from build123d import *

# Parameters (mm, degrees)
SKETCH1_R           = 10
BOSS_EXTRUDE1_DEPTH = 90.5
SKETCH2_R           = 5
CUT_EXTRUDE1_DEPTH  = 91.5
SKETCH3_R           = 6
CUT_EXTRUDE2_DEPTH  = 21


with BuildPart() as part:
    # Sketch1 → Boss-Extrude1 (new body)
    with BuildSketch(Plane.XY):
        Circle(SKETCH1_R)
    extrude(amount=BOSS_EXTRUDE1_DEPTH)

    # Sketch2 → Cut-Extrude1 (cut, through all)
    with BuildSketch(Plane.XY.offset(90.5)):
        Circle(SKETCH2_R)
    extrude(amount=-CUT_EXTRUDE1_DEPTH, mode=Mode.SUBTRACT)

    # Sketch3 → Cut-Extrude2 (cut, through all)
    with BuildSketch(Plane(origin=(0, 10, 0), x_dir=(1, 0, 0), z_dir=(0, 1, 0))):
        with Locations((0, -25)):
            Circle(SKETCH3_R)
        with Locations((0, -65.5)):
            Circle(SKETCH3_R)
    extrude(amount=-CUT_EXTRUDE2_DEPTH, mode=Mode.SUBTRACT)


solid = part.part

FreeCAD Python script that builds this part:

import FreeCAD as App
import Part
import Sketcher
from FreeCAD import Vector
Q = App.Units.Quantity

doc = App.newDocument("Part")
params = doc.addObject("Spreadsheet::Sheet", "Params")
for row, (alias, value) in enumerate([
    ("sketch1_diameter", "20 mm"),
    ("pad1_length", "90.5 mm"),
    ("sketch2_diameter", "10 mm"),
    ("sketch3_diameter", "12 mm"),
], start=1):
    params.set(f"A{row}", alias)
    params.set(f"B{row}", "=" + value)
    params.setAlias(f"B{row}", alias)

body = doc.addObject("PartDesign::Body", "Body")

# Sketch on XY plane
sketch1 = body.newObject("Sketcher::SketchObject", "Sketch")
sketch1.AttachmentSupport = (doc.getObject("XY_Plane"), [""])
sketch1.MapMode = "FlatFace"
sketch1.addGeometry(Part.Circle(Vector(0, 0, 0), Vector(0, 0, 1), 10), False)
sketch1.addConstraint(Sketcher.Constraint("Coincident", 0, 3, -1, 1))
sketch1.addConstraint(Sketcher.Constraint("Diameter", 0, Q("20 mm")))
sketch1.setExpression("Constraints[1]", "Params.sketch1_diameter")
pad1 = body.newObject("PartDesign::Pad", "Pad")
pad1.Profile = sketch1
pad1.setExpression("Length", "Params.pad1_length")

# Sketch on XY plane
sketch2 = body.newObject("Sketcher::SketchObject", "Sketch001")
sketch2.AttachmentSupport = (doc.getObject("XY_Plane"), [""])
sketch2.MapMode = "FlatFace"
sketch2.AttachmentOffset = App.Placement(Vector(0, 0, 90.5), App.Rotation())
sketch2.addGeometry(Part.Circle(Vector(0, 0, 0), Vector(0, 0, 1), 5), False)
sketch2.addConstraint(Sketcher.Constraint("Coincident", 0, 3, -1, 1))
sketch2.addConstraint(Sketcher.Constraint("Diameter", 0, Q("10 mm")))
sketch2.setExpression("Constraints[1]", "Params.sketch2_diameter")
pocket1 = body.newObject("PartDesign::Pocket", "Pocket")
pocket1.Profile = sketch2
pocket1.Type = "ThroughAll"

# Sketch on XZ plane
sketch3 = body.newObject("Sketcher::SketchObject", "Sketch002")
sketch3.AttachmentSupport = (doc.getObject("XZ_Plane"), [""])
sketch3.MapMode = "FlatFace"
sketch3.AttachmentOffset = App.Placement(Vector(0, 0, -10), App.Rotation())
sketch3.addGeometry(Part.Circle(Vector(0, 25, 0), Vector(0, 0, 1), 6), False)
sketch3.addGeometry(Part.Circle(Vector(0, 66, 0), Vector(0, 0, 1), 6), False)
sketch3.addConstraint(Sketcher.Constraint("Equal", 0, 1))
sketch3.addConstraint(Sketcher.Constraint("PointOnObject", 0, 3, -2))
sketch3.addConstraint(Sketcher.Constraint("PointOnObject", 1, 3, -2))
sketch3.addConstraint(Sketcher.Constraint("Diameter", 0, Q("12 mm")))
sketch3.addConstraint(Sketcher.Constraint("DistanceY", -1, 1, 0, 3, Q("25 mm")))
sketch3.addConstraint(Sketcher.Constraint("DistanceY", -1, 1, 1, 3, Q("65.5 mm")))
sketch3.setExpression("Constraints[3]", "Params.sketch3_diameter")
pocket2 = body.newObject("PartDesign::Pocket", "Pocket001")
pocket2.Profile = sketch3
pocket2.Type = "ThroughAll"
pocket2.Reversed = True

doc.recompute()
